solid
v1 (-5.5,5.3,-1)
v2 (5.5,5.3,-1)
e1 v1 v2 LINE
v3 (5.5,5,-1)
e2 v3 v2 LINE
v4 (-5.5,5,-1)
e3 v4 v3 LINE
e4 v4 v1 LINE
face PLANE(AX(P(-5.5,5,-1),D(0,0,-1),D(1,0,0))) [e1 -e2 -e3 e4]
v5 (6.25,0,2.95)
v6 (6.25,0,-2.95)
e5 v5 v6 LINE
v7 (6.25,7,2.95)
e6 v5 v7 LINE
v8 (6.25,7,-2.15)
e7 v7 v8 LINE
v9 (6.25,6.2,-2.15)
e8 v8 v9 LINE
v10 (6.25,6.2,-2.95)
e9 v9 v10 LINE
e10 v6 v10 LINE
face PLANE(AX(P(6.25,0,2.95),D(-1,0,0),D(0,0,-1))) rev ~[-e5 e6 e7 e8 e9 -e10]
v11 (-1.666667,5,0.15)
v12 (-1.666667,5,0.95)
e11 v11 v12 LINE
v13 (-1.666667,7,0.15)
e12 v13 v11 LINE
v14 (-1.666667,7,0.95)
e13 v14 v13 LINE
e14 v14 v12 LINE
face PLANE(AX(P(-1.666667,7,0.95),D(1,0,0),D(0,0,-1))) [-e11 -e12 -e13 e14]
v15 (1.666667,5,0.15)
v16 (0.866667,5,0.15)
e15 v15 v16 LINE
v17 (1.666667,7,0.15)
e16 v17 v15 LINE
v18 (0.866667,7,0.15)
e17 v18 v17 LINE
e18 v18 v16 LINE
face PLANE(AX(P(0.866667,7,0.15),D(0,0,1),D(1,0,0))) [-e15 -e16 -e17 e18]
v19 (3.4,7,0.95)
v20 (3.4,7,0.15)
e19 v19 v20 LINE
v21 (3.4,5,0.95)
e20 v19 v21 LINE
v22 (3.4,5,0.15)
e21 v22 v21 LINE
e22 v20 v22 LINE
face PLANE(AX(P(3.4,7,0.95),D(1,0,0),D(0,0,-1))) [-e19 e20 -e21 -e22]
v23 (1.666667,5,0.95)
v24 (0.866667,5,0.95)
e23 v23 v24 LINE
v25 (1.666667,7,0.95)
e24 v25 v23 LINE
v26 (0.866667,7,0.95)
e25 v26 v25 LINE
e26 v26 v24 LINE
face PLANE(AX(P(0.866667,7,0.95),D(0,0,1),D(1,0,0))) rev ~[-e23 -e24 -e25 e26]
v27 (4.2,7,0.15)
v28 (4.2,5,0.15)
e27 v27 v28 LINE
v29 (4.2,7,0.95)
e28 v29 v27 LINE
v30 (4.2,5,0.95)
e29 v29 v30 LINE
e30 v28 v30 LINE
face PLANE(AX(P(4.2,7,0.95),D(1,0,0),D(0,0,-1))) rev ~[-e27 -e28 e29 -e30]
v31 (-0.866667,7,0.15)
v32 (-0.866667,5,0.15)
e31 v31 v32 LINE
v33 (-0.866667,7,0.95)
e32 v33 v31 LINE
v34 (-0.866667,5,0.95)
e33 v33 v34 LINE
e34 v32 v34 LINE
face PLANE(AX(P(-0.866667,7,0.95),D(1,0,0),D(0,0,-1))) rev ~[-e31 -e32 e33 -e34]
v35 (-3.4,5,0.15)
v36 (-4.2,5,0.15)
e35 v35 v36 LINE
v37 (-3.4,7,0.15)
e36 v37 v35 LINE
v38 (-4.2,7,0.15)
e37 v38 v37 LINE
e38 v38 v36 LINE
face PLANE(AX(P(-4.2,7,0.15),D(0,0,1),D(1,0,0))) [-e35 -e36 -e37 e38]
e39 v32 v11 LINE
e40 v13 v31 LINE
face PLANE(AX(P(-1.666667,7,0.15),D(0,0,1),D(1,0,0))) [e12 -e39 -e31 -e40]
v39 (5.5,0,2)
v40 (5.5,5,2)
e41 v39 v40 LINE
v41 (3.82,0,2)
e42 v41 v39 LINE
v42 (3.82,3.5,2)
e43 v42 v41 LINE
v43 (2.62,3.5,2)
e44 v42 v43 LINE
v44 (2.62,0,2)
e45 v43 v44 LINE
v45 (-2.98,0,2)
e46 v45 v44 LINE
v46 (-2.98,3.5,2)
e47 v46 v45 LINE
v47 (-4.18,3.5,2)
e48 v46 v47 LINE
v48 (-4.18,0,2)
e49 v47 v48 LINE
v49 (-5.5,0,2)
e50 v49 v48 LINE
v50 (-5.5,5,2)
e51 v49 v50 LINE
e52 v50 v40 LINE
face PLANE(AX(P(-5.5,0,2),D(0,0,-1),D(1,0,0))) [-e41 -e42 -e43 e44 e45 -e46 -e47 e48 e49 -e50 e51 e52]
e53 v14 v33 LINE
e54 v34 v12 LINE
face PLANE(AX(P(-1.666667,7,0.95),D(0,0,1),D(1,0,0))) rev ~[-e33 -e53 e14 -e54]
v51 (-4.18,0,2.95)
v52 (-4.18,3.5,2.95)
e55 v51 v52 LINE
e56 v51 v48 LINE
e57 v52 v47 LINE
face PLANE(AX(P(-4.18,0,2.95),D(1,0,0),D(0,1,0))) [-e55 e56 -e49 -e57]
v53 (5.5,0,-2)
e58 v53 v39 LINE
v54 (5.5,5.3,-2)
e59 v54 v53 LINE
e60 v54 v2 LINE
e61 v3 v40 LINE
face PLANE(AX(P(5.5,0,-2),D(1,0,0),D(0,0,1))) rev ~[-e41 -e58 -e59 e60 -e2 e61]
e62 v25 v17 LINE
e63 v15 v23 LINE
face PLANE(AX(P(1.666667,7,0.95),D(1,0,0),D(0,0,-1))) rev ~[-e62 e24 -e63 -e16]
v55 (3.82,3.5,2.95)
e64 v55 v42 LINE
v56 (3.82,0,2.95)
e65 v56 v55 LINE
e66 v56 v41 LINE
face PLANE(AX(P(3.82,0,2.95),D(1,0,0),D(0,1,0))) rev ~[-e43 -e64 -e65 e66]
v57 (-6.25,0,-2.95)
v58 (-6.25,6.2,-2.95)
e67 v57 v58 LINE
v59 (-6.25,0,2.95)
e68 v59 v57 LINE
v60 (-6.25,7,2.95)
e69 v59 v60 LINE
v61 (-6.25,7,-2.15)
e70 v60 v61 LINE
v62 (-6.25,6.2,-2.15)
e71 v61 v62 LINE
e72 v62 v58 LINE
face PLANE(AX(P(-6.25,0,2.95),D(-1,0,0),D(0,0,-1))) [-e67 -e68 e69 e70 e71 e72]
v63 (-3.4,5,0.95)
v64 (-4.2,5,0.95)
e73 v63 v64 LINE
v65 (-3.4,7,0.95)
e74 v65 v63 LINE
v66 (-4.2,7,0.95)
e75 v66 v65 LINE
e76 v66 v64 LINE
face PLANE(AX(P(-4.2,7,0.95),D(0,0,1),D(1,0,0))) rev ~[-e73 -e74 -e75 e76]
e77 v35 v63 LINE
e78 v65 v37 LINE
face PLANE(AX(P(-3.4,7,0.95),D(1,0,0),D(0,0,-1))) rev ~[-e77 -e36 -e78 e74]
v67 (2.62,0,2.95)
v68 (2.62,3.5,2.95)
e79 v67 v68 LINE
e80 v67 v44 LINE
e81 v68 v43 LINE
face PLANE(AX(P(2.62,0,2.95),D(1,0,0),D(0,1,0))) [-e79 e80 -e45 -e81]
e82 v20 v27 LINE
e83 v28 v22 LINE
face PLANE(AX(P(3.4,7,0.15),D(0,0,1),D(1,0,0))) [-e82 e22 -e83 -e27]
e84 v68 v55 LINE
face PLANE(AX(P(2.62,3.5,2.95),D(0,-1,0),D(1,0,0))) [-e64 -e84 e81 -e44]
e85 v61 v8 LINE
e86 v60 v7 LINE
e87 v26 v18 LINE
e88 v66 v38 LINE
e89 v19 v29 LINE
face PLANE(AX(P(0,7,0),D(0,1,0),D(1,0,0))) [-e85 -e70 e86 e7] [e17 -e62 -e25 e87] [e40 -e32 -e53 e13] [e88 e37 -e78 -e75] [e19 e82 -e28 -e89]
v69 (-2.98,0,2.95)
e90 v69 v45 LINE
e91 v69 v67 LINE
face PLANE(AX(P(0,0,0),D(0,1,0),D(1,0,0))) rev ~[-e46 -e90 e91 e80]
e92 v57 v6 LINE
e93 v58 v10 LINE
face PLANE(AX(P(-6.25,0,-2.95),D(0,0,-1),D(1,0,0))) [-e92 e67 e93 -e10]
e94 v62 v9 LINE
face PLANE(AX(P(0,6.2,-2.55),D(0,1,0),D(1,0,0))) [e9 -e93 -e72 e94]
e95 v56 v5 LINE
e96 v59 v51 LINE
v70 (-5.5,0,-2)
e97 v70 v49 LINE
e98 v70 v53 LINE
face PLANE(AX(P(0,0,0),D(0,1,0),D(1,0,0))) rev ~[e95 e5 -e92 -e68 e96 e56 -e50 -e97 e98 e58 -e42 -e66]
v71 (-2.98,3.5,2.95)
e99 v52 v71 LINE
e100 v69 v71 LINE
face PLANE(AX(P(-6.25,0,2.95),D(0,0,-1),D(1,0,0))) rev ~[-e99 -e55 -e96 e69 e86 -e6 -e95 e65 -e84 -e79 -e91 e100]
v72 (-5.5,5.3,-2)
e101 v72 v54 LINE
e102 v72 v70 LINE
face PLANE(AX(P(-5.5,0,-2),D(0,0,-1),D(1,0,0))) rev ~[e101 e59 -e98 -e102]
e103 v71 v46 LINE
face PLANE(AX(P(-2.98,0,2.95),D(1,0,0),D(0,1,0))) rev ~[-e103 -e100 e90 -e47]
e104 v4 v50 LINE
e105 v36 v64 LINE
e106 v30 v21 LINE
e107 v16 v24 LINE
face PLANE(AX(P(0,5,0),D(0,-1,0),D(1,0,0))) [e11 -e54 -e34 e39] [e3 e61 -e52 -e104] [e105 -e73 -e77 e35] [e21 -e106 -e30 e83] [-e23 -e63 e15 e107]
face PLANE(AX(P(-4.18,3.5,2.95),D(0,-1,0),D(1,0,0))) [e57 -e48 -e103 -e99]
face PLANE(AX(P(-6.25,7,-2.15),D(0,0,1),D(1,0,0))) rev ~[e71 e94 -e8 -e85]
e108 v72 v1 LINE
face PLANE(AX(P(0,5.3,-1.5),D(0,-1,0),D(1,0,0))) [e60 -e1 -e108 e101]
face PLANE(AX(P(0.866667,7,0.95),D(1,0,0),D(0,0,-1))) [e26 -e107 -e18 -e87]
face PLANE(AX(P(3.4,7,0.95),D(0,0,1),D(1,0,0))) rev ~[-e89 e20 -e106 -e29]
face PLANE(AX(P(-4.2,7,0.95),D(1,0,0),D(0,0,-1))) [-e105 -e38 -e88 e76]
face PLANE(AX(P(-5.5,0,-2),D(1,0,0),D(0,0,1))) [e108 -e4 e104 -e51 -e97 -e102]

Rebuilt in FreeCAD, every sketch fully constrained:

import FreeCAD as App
import Part
import Sketcher

V = App.Vector

doc = App.newDocument("Part")
params = doc.addObject("Spreadsheet::Sheet", "Params")
for row, (alias, value) in enumerate([
    ("sketch1_width", "12.5 mm"),
    ("sketch1_height", "5.9 mm"),
    ("pad1_length", "7 mm"),
    ("sketch2_width", "11 mm"),
    ("sketch2_height", "4 mm"),
    ("pocket1_length", "5 mm"),
    ("sketch3_width", "1.2 mm"),
    ("sketch3_height", "3.5 mm"),
    ("pocket2_length", "4 mm"),
    ("sketch4_width", "12.5 mm"),
    ("sketch4_height", "0.8 mm"),
    ("pocket3_length", "0.8 mm"),
    ("sketch5_width", "0.8 mm"),
    ("pocket4_length", "10 mm"),
    ("sketch6_width", "11 mm"),
    ("sketch6_height", "1 mm"),
    ("pocket5_length", "0.3 mm"),
], start=1):
    params.set(f"A{row}", alias)
    params.set(f"B{row}", "=" + value)
    params.setAlias(f"B{row}", alias)

body = doc.addObject("PartDesign::Body", "Body")

# Sketch on XZ plane
sketch1 = doc.addObject("Sketcher::SketchObject", "Sketch")
body.addObject(sketch1)
sketch1.AttachmentSupport = (doc.XZ_Plane, [""])
sketch1.MapMode = "FlatFace"
sketch1.addGeometry(Part.LineSegment(V(-6.25, -2.95, 0), V(-6.25, 2.95, 0)), False)
sketch1.addGeometry(Part.LineSegment(V(-6.25, 2.95, 0), V(6.25, 2.95, 0)), False)
sketch1.addGeometry(Part.LineSegment(V(6.25, 2.95, 0), V(6.25, -2.95, 0)), False)
sketch1.addGeometry(Part.LineSegment(V(6.25, -2.95, 0), V(-6.25, -2.95, 0)), False)
sketch1.addConstraint(Sketcher.Constraint("Coincident", 0, 2, 1, 1))
sketch1.addConstraint(Sketcher.Constraint("Coincident", 1, 2, 2, 1))
sketch1.addConstraint(Sketcher.Constraint("Coincident", 2, 2, 3, 1))
sketch1.addConstraint(Sketcher.Constraint("Coincident", 3, 2, 0, 1))
sketch1.addConstraint(Sketcher.Constraint("Vertical", 0))
sketch1.addConstraint(Sketcher.Constraint("Horizontal", 1))
sketch1.addConstraint(Sketcher.Constraint("Vertical", 2))
sketch1.addConstraint(Sketcher.Constraint("Horizontal", 3))
sketch1.addConstraint(Sketcher.Constraint("Symmetric", 0, 2, 2, 2, -1, 1))
sketch1.addConstraint(Sketcher.Constraint("DistanceX", 1, 1, 1, 2, 12.5))
sketch1.addConstraint(Sketcher.Constraint("DistanceY", 0, 1, 0, 2, 5.9))
sketch1.setExpression("Constraints[9]", "Params.sketch1_width")
sketch1.setExpression("Constraints[10]", "Params.sketch1_height")
pad1 = doc.addObject("PartDesign::Pad", "Pad")
body.addObject(pad1)
pad1.Profile = sketch1
pad1.setExpression("Length", "Params.pad1_length")
pad1.Reversed = True

# Sketch on XZ plane
sketch2 = doc.addObject("Sketcher::SketchObject", "Sketch001")
body.addObject(sketch2)
sketch2.AttachmentSupport = (doc.XZ_Plane, [""])
sketch2.MapMode = "FlatFace"
sketch2.addGeometry(Part.LineSegment(V(-5.5, 2, 0), V(-5.5, -2, 0)), False)
sketch2.addGeometry(Part.LineSegment(V(-5.5, -2, 0), V(5.5, -2, 0)), False)
sketch2.addGeometry(Part.LineSegment(V(5.5, -2, 0), V(5.5, 2, 0)), False)
sketch2.addGeometry(Part.LineSegment(V(5.5, 2, 0), V(-5.5, 2, 0)), False)
sketch2.addConstraint(Sketcher.Constraint("Coincident", 0, 2, 1, 1))
sketch2.addConstraint(Sketcher.Constraint("Coincident", 1, 2, 2, 1))
sketch2.addConstraint(Sketcher.Constraint("Coincident", 2, 2, 3, 1))
sketch2.addConstraint(Sketcher.Constraint("Coincident", 3, 2, 0, 1))
sketch2.addConstraint(Sketcher.Constraint("Vertical", 0))
sketch2.addConstraint(Sketcher.Constraint("Horizontal", 1))
sketch2.addConstraint(Sketcher.Constraint("Vertical", 2))
sketch2.addConstraint(Sketcher.Constraint("Horizontal", 3))
sketch2.addConstraint(Sketcher.Constraint("Symmetric", 0, 2, 2, 2, -1, 1))
sketch2.addConstraint(Sketcher.Constraint("DistanceX", 1, 1, 1, 2, 11.0))
sketch2.addConstraint(Sketcher.Constraint("DistanceY", 0, 2, 0, 1, 4.0))
sketch2.setExpression("Constraints[9]", "Params.sketch2_width")
sketch2.setExpression("Constraints[10]", "Params.sketch2_height")
pocket1 = doc.addObject("PartDesign::Pocket", "Pocket")
body.addObject(pocket1)
pocket1.Profile = sketch2
pocket1.setExpression("Length", "Params.pocket1_length")

# Sketch on XY plane
sketch3 = doc.addObject("Sketcher::SketchObject", "Sketch002")
body.addObject(sketch3)
sketch3.AttachmentSupport = (doc.XY_Plane, [""])
sketch3.MapMode = "FlatFace"
sketch3.AttachmentOffset = App.Placement(V(0, 0, 2.95), App.Rotation())
sketch3.addGeometry(Part.LineSegment(V(-4.18, 3.5, 0), V(-4.18, 0, 0)), False)
sketch3.addGeometry(Part.LineSegment(V(-4.18, 0, 0), V(-2.98, 0, 0)), False)
sketch3.addGeometry(Part.LineSegment(V(-2.98, 0, 0), V(-2.98, 3.5, 0)), False)
sketch3.addGeometry(Part.LineSegment(V(-2.98, 3.5, 0), V(-4.18, 3.5, 0)), False)
sketch3.addGeometry(Part.LineSegment(V(2.62, 3.5, 0), V(2.62, 0, 0)), False)
sketch3.addGeometry(Part.LineSegment(V(2.62, 0, 0), V(3.82, 0, 0)), False)
sketch3.addGeometry(Part.LineSegment(V(3.82, 0, 0), V(3.82, 3.5, 0)), False)
sketch3.addGeometry(Part.LineSegment(V(3.82, 3.5, 0), V(2.62, 3.5, 0)), False)
sketch3.addConstraint(Sketcher.Constraint("Coincident", 0, 2, 1, 1))
sketch3.addConstraint(Sketcher.Constraint("Coincident", 1, 2, 2, 1))
sketch3.addConstraint(Sketcher.Constraint("Coincident", 2, 2, 3, 1))
sketch3.addConstraint(Sketcher.Constraint("Coincident", 3, 2, 0, 1))
sketch3.addConstraint(Sketcher.Constraint("Coincident", 4, 2, 5, 1))
sketch3.addConstraint(Sketcher.Constraint("Coincident", 5, 2, 6, 1))
sketch3.addConstraint(Sketcher.Constraint("Coincident", 6, 2, 7, 1))
sketch3.addConstraint(Sketcher.Constraint("Coincident", 7, 2, 4, 1))
sketch3.addConstraint(Sketcher.Constraint("Vertical", 0))
sketch3.addConstraint(Sketcher.Constraint("Horizontal", 1))
sketch3.addConstraint(Sketcher.Constraint("Vertical", 2))
sketch3.addConstraint(Sketcher.Constraint("Horizontal", 3))
sketch3.addConstraint(Sketcher.Constraint("Vertical", 4))
sketch3.addConstraint(Sketcher.Constraint("Horizontal", 5))
sketch3.addConstraint(Sketcher.Constraint("Vertical", 6))
sketch3.addConstraint(Sketcher.Constraint("Horizontal", 7))
sketch3.addConstraint(Sketcher.Constraint("PointOnObject", 0, 2, -1))
sketch3.addConstraint(Sketcher.Constraint("PointOnObject", 4, 2, -1))
sketch3.addConstraint(Sketcher.Constraint("Horizontal", 3, 2, 6, 2))
sketch3.addConstraint(Sketcher.Constraint("Equal", 3, 5))
sketch3.addConstraint(Sketcher.Constraint("DistanceX", 1, 1, 1, 2, 1.2))
sketch3.addConstraint(Sketcher.Constraint("DistanceY", 0, 2, 0, 1, 3.5))
sketch3.addConstraint(Sketcher.Constraint("DistanceX", 0, 2, 5, 2, 8.0))
sketch3.addConstraint(Sketcher.Constraint("DistanceX", 0, 2, -1, 1, 4.18))
sketch3.setExpression("Constraints[20]", "Params.sketch3_width")
sketch3.setExpression("Constraints[21]", "Params.sketch3_height")
pocket2 = doc.addObject("PartDesign::Pocket", "Pocket001")
body.addObject(pocket2)
pocket2.Profile = sketch3
pocket2.setExpression("Length", "Params.pocket2_length")

# Sketch on XZ plane
sketch4 = doc.addObject("Sketcher::SketchObject", "Sketch003")
body.addObject(sketch4)
sketch4.AttachmentSupport = (doc.XZ_Plane, [""])
sketch4.MapMode = "FlatFace"
sketch4.AttachmentOffset = App.Placement(V(0, 0, -7), App.Rotation())
sketch4.addGeometry(Part.LineSegment(V(-6.25, -2.95, 0), V(-6.25, -2.15, 0)), False)
sketch4.addGeometry(Part.LineSegment(V(-6.25, -2.15, 0), V(6.25, -2.15, 0)), False)
sketch4.addGeometry(Part.LineSegment(V(6.25, -2.15, 0), V(6.25, -2.95, 0)), False)
sketch4.addGeometry(Part.LineSegment(V(6.25, -2.95, 0), V(-6.25, -2.95, 0)), False)
sketch4.addConstraint(Sketcher.Constraint("Coincident", 0, 2, 1, 1))
sketch4.addConstraint(Sketcher.Constraint("Coincident", 1, 2, 2, 1))
sketch4.addConstraint(Sketcher.Constraint("Coincident", 2, 2, 3, 1))
sketch4.addConstraint(Sketcher.Constraint("Coincident", 3, 2, 0, 1))
sketch4.addConstraint(Sketcher.Constraint("Vertical", 0))
sketch4.addConstraint(Sketcher.Constraint("Horizontal", 1))
sketch4.addConstraint(Sketcher.Constraint("Vertical", 2))
sketch4.addConstraint(Sketcher.Constraint("Horizontal", 3))
sketch4.addConstraint(Sketcher.Constraint("DistanceX", 1, 1, 1, 2, 12.5))
sketch4.addConstraint(Sketcher.Constraint("DistanceY", 0, 1, 0, 2, 0.8))
sketch4.addConstraint(Sketcher.Constraint("DistanceX", 0, 2, -1, 1, 6.25))
sketch4.addConstraint(Sketcher.Constraint("DistanceY", 0, 2, -1, 1, 2.15))
sketch4.setExpression("Constraints[8]", "Params.sketch4_width")
sketch4.setExpression("Constraints[9]", "Params.sketch4_height")
pocket3 = doc.addObject("PartDesign::Pocket", "Pocket002")
body.addObject(pocket3)
pocket3.Profile = sketch4
pocket3.setExpression("Length", "Params.pocket3_length")
pocket3.Reversed = True

# Sketch on XZ plane
sketch5 = doc.addObject("Sketcher::SketchObject", "Sketch004")
body.addObject(sketch5)
sketch5.AttachmentSupport = (doc.XZ_Plane, [""])
sketch5.MapMode = "FlatFace"
sketch5.AttachmentOffset = App.Placement(V(0, 0, -7), App.Rotation())
sketch5.addGeometry(Part.LineSegment(V(3.4, 0.15, 0), V(3.4, 0.95, 0)), False)
sketch5.addGeometry(Part.LineSegment(V(3.4, 0.95, 0), V(4.2, 0.95, 0)), False)
sketch5.addGeometry(Part.LineSegment(V(4.2, 0.95, 0), V(4.2, 0.15, 0)), False)
sketch5.addGeometry(Part.LineSegment(V(4.2, 0.15, 0), V(3.4, 0.15, 0)), False)
sketch5.addGeometry(Part.LineSegment(V(0.866667, 0.15, 0), V(0.866667, 0.95, 0)), False)
sketch5.addGeometry(Part.LineSegment(V(0.866667, 0.95, 0), V(1.666667, 0.95, 0)), False)
sketch5.addGeometry(Part.LineSegment(V(1.666667, 0.95, 0), V(1.666667, 0.15, 0)), False)
sketch5.addGeometry(Part.LineSegment(V(1.666667, 0.15, 0), V(0.866667, 0.15, 0)), False)
sketch5.addGeometry(Part.LineSegment(V(-1.666667, 0.15, 0), V(-1.666667, 0.95, 0)), False)
sketch5.addGeometry(Part.LineSegment(V(-1.666667, 0.95, 0), V(-0.866667, 0.95, 0)), False)
sketch5.addGeometry(Part.LineSegment(V(-0.866667, 0.95, 0), V(-0.866667, 0.15, 0)), False)
sketch5.addGeometry(Part.LineSegment(V(-0.866667, 0.15, 0), V(-1.666667, 0.15, 0)), False)
sketch5.addGeometry(Part.LineSegment(V(-4.2, 0.15, 0), V(-4.2, 0.95, 0)), False)
sketch5.addGeometry(Part.LineSegment(V(-4.2, 0.95, 0), V(-3.4, 0.95, 0)), False)
sketch5.addGeometry(Part.LineSegment(V(-3.4, 0.95, 0), V(-3.4, 0.15, 0)), False)
sketch5.addGeometry(Part.LineSegment(V(-3.4, 0.15, 0), V(-4.2, 0.15, 0)), False)
sketch5.addConstraint(Sketcher.Constraint("Coincident", 0, 2, 1, 1))
sketch5.addConstraint(Sketcher.Constraint("Coincident", 1, 2, 2, 1))
sketch5.addConstraint(Sketcher.Constraint("Coincident", 2, 2, 3, 1))
sketch5.addConstraint(Sketcher.Constraint("Coincident", 3, 2, 0, 1))
sketch5.addConstraint(Sketcher.Constraint("Coincident", 4, 2, 5, 1))
sketch5.addConstraint(Sketcher.Constraint("Coincident", 5, 2, 6, 1))
sketch5.addConstraint(Sketcher.Constraint("Coincident", 6, 2, 7, 1))
sketch5.addConstraint(Sketcher.Constraint("Coincident", 7, 2, 4, 1))
sketch5.addConstraint(Sketcher.Constraint("Coincident", 8, 2, 9, 1))
sketch5.addConstraint(Sketcher.Constraint("Coincident", 9, 2, 10, 1))
sketch5.addConstraint(Sketcher.Constraint("Coincident", 10, 2, 11, 1))
sketch5.addConstraint(Sketcher.Constraint("Coincident", 11, 2, 8, 1))
sketch5.addConstraint(Sketcher.Constraint("Coincident", 12, 2, 13, 1))
sketch5.addConstraint(Sketcher.Constraint("Coincident", 13, 2, 14, 1))
sketch5.addConstraint(Sketcher.Constraint("Coincident", 14, 2, 15, 1))
sketch5.addConstraint(Sketcher.Constraint("Coincident", 15, 2, 12, 1))
sketch5.addConstraint(Sketcher.Constraint("Vertical", 0))
sketch5.addConstraint(Sketcher.Constraint("Horizontal", 1))
sketch5.addConstraint(Sketcher.Constraint("Vertical", 2))
sketch5.addConstraint(Sketcher.Constraint("Horizontal", 3))
sketch5.addConstraint(Sketcher.Constraint("Vertical", 4))
sketch5.addConstraint(Sketcher.Constraint("Horizontal", 5))
sketch5.addConstraint(Sketcher.Constraint("Vertical", 6))
sketch5.addConstraint(Sketcher.Constraint("Horizontal", 7))
sketch5.addConstraint(Sketcher.Constraint("Vertical", 8))
sketch5.addConstraint(Sketcher.Constraint("Horizontal", 9))
sketch5.addConstraint(Sketcher.Constraint("Vertical", 10))
sketch5.addConstraint(Sketcher.Constraint("Horizontal", 11))
sketch5.addConstraint(Sketcher.Constraint("Vertical", 12))
sketch5.addConstraint(Sketcher.Constraint("Horizontal", 13))
sketch5.addConstraint(Sketcher.Constraint("Vertical", 14))
sketch5.addConstraint(Sketcher.Constraint("Horizontal", 15))
sketch5.addConstraint(Sketcher.Constraint("Symmetric", 5, 2, 8, 2, -2))
sketch5.addConstraint(Sketcher.Constraint("Symmetric", 7, 2, 10, 2, -2))
sketch5.addConstraint(Sketcher.Constraint("Symmetric", 1, 2, 12, 2, -2))
sketch5.addConstraint(Sketcher.Constraint("Symmetric", 3, 2, 14, 2, -2))
sketch5.addConstraint(Sketcher.Constraint("Horizontal", 1, 2, 4, 2))
sketch5.addConstraint(Sketcher.Constraint("Horizontal", 3, 2, 6, 2))
sketch5.addConstraint(Sketcher.Constraint("Equal", 3, 5))
sketch5.addConstraint(Sketcher.Constraint("Equal", 15, 0))
sketch5.addConstraint(Sketcher.Constraint("DistanceX", 1, 1, 1, 2, 0.8))
sketch5.addConstraint(Sketcher.Constraint("DistanceX", -1, 1, 0, 2, 3.4))
sketch5.addConstraint(Sketcher.Constraint("DistanceY", -1, 1, 0, 2, 0.95))
sketch5.addConstraint(Sketcher.Constraint("DistanceX", -1, 1, 4, 2, 0.866667))
sketch5.setExpression("Constraints[40]", "Params.sketch5_width")
pocket4 = doc.addObject("PartDesign::Pocket", "Pocket003")
body.addObject(pocket4)
pocket4.Profile = sketch5
pocket4.setExpression("Length", "Params.pocket4_length")
pocket4.Reversed = True

# Sketch on XZ plane
sketch6 = doc.addObject("Sketcher::SketchObject", "Sketch005")
body.addObject(sketch6)
sketch6.AttachmentSupport = (doc.XZ_Plane, [""])
sketch6.MapMode = "FlatFace"
sketch6.AttachmentOffset = App.Placement(V(0, 0, -5), App.Rotation())
sketch6.addGeometry(Part.LineSegment(V(-5.5, -1, 0), V(-5.5, -2, 0)), False)
sketch6.addGeometry(Part.LineSegment(V(-5.5, -2, 0), V(5.5, -2, 0)), False)
sketch6.addGeometry(Part.LineSegment(V(5.5, -2, 0), V(5.5, -1, 0)), False)
sketch6.addGeometry(Part.LineSegment(V(5.5, -1, 0), V(-5.5, -1, 0)), False)
sketch6.addConstraint(Sketcher.Constraint("Coincident", 0, 2, 1, 1))
sketch6.addConstraint(Sketcher.Constraint("Coincident", 1, 2, 2, 1))
sketch6.addConstraint(Sketcher.Constraint("Coincident", 2, 2, 3, 1))
sketch6.addConstraint(Sketcher.Constraint("Coincident", 3, 2, 0, 1))
sketch6.addConstraint(Sketcher.Constraint("Vertical", 0))
sketch6.addConstraint(Sketcher.Constraint("Horizontal", 1))
sketch6.addConstraint(Sketcher.Constraint("Vertical", 2))
sketch6.addConstraint(Sketcher.Constraint("Horizontal", 3))
sketch6.addConstraint(Sketcher.Constraint("DistanceX", 1, 1, 1, 2, 11.0))
sketch6.addConstraint(Sketcher.Constraint("DistanceY", 0, 2, 0, 1, 1.0))
sketch6.addConstraint(Sketcher.Constraint("DistanceY", 0, 2, -1, 1, 2.0))
sketch6.addConstraint(Sketcher.Constraint("DistanceX", 0, 2, -1, 1, 5.5))
sketch6.setExpression("Constraints[8]", "Params.sketch6_width")
sketch6.setExpression("Constraints[9]", "Params.sketch6_height")
pocket5 = doc.addObject("PartDesign::Pocket", "Pocket004")
body.addObject(pocket5)
pocket5.Profile = sketch6
pocket5.setExpression("Length", "Params.pocket5_length")

doc.recompute()
